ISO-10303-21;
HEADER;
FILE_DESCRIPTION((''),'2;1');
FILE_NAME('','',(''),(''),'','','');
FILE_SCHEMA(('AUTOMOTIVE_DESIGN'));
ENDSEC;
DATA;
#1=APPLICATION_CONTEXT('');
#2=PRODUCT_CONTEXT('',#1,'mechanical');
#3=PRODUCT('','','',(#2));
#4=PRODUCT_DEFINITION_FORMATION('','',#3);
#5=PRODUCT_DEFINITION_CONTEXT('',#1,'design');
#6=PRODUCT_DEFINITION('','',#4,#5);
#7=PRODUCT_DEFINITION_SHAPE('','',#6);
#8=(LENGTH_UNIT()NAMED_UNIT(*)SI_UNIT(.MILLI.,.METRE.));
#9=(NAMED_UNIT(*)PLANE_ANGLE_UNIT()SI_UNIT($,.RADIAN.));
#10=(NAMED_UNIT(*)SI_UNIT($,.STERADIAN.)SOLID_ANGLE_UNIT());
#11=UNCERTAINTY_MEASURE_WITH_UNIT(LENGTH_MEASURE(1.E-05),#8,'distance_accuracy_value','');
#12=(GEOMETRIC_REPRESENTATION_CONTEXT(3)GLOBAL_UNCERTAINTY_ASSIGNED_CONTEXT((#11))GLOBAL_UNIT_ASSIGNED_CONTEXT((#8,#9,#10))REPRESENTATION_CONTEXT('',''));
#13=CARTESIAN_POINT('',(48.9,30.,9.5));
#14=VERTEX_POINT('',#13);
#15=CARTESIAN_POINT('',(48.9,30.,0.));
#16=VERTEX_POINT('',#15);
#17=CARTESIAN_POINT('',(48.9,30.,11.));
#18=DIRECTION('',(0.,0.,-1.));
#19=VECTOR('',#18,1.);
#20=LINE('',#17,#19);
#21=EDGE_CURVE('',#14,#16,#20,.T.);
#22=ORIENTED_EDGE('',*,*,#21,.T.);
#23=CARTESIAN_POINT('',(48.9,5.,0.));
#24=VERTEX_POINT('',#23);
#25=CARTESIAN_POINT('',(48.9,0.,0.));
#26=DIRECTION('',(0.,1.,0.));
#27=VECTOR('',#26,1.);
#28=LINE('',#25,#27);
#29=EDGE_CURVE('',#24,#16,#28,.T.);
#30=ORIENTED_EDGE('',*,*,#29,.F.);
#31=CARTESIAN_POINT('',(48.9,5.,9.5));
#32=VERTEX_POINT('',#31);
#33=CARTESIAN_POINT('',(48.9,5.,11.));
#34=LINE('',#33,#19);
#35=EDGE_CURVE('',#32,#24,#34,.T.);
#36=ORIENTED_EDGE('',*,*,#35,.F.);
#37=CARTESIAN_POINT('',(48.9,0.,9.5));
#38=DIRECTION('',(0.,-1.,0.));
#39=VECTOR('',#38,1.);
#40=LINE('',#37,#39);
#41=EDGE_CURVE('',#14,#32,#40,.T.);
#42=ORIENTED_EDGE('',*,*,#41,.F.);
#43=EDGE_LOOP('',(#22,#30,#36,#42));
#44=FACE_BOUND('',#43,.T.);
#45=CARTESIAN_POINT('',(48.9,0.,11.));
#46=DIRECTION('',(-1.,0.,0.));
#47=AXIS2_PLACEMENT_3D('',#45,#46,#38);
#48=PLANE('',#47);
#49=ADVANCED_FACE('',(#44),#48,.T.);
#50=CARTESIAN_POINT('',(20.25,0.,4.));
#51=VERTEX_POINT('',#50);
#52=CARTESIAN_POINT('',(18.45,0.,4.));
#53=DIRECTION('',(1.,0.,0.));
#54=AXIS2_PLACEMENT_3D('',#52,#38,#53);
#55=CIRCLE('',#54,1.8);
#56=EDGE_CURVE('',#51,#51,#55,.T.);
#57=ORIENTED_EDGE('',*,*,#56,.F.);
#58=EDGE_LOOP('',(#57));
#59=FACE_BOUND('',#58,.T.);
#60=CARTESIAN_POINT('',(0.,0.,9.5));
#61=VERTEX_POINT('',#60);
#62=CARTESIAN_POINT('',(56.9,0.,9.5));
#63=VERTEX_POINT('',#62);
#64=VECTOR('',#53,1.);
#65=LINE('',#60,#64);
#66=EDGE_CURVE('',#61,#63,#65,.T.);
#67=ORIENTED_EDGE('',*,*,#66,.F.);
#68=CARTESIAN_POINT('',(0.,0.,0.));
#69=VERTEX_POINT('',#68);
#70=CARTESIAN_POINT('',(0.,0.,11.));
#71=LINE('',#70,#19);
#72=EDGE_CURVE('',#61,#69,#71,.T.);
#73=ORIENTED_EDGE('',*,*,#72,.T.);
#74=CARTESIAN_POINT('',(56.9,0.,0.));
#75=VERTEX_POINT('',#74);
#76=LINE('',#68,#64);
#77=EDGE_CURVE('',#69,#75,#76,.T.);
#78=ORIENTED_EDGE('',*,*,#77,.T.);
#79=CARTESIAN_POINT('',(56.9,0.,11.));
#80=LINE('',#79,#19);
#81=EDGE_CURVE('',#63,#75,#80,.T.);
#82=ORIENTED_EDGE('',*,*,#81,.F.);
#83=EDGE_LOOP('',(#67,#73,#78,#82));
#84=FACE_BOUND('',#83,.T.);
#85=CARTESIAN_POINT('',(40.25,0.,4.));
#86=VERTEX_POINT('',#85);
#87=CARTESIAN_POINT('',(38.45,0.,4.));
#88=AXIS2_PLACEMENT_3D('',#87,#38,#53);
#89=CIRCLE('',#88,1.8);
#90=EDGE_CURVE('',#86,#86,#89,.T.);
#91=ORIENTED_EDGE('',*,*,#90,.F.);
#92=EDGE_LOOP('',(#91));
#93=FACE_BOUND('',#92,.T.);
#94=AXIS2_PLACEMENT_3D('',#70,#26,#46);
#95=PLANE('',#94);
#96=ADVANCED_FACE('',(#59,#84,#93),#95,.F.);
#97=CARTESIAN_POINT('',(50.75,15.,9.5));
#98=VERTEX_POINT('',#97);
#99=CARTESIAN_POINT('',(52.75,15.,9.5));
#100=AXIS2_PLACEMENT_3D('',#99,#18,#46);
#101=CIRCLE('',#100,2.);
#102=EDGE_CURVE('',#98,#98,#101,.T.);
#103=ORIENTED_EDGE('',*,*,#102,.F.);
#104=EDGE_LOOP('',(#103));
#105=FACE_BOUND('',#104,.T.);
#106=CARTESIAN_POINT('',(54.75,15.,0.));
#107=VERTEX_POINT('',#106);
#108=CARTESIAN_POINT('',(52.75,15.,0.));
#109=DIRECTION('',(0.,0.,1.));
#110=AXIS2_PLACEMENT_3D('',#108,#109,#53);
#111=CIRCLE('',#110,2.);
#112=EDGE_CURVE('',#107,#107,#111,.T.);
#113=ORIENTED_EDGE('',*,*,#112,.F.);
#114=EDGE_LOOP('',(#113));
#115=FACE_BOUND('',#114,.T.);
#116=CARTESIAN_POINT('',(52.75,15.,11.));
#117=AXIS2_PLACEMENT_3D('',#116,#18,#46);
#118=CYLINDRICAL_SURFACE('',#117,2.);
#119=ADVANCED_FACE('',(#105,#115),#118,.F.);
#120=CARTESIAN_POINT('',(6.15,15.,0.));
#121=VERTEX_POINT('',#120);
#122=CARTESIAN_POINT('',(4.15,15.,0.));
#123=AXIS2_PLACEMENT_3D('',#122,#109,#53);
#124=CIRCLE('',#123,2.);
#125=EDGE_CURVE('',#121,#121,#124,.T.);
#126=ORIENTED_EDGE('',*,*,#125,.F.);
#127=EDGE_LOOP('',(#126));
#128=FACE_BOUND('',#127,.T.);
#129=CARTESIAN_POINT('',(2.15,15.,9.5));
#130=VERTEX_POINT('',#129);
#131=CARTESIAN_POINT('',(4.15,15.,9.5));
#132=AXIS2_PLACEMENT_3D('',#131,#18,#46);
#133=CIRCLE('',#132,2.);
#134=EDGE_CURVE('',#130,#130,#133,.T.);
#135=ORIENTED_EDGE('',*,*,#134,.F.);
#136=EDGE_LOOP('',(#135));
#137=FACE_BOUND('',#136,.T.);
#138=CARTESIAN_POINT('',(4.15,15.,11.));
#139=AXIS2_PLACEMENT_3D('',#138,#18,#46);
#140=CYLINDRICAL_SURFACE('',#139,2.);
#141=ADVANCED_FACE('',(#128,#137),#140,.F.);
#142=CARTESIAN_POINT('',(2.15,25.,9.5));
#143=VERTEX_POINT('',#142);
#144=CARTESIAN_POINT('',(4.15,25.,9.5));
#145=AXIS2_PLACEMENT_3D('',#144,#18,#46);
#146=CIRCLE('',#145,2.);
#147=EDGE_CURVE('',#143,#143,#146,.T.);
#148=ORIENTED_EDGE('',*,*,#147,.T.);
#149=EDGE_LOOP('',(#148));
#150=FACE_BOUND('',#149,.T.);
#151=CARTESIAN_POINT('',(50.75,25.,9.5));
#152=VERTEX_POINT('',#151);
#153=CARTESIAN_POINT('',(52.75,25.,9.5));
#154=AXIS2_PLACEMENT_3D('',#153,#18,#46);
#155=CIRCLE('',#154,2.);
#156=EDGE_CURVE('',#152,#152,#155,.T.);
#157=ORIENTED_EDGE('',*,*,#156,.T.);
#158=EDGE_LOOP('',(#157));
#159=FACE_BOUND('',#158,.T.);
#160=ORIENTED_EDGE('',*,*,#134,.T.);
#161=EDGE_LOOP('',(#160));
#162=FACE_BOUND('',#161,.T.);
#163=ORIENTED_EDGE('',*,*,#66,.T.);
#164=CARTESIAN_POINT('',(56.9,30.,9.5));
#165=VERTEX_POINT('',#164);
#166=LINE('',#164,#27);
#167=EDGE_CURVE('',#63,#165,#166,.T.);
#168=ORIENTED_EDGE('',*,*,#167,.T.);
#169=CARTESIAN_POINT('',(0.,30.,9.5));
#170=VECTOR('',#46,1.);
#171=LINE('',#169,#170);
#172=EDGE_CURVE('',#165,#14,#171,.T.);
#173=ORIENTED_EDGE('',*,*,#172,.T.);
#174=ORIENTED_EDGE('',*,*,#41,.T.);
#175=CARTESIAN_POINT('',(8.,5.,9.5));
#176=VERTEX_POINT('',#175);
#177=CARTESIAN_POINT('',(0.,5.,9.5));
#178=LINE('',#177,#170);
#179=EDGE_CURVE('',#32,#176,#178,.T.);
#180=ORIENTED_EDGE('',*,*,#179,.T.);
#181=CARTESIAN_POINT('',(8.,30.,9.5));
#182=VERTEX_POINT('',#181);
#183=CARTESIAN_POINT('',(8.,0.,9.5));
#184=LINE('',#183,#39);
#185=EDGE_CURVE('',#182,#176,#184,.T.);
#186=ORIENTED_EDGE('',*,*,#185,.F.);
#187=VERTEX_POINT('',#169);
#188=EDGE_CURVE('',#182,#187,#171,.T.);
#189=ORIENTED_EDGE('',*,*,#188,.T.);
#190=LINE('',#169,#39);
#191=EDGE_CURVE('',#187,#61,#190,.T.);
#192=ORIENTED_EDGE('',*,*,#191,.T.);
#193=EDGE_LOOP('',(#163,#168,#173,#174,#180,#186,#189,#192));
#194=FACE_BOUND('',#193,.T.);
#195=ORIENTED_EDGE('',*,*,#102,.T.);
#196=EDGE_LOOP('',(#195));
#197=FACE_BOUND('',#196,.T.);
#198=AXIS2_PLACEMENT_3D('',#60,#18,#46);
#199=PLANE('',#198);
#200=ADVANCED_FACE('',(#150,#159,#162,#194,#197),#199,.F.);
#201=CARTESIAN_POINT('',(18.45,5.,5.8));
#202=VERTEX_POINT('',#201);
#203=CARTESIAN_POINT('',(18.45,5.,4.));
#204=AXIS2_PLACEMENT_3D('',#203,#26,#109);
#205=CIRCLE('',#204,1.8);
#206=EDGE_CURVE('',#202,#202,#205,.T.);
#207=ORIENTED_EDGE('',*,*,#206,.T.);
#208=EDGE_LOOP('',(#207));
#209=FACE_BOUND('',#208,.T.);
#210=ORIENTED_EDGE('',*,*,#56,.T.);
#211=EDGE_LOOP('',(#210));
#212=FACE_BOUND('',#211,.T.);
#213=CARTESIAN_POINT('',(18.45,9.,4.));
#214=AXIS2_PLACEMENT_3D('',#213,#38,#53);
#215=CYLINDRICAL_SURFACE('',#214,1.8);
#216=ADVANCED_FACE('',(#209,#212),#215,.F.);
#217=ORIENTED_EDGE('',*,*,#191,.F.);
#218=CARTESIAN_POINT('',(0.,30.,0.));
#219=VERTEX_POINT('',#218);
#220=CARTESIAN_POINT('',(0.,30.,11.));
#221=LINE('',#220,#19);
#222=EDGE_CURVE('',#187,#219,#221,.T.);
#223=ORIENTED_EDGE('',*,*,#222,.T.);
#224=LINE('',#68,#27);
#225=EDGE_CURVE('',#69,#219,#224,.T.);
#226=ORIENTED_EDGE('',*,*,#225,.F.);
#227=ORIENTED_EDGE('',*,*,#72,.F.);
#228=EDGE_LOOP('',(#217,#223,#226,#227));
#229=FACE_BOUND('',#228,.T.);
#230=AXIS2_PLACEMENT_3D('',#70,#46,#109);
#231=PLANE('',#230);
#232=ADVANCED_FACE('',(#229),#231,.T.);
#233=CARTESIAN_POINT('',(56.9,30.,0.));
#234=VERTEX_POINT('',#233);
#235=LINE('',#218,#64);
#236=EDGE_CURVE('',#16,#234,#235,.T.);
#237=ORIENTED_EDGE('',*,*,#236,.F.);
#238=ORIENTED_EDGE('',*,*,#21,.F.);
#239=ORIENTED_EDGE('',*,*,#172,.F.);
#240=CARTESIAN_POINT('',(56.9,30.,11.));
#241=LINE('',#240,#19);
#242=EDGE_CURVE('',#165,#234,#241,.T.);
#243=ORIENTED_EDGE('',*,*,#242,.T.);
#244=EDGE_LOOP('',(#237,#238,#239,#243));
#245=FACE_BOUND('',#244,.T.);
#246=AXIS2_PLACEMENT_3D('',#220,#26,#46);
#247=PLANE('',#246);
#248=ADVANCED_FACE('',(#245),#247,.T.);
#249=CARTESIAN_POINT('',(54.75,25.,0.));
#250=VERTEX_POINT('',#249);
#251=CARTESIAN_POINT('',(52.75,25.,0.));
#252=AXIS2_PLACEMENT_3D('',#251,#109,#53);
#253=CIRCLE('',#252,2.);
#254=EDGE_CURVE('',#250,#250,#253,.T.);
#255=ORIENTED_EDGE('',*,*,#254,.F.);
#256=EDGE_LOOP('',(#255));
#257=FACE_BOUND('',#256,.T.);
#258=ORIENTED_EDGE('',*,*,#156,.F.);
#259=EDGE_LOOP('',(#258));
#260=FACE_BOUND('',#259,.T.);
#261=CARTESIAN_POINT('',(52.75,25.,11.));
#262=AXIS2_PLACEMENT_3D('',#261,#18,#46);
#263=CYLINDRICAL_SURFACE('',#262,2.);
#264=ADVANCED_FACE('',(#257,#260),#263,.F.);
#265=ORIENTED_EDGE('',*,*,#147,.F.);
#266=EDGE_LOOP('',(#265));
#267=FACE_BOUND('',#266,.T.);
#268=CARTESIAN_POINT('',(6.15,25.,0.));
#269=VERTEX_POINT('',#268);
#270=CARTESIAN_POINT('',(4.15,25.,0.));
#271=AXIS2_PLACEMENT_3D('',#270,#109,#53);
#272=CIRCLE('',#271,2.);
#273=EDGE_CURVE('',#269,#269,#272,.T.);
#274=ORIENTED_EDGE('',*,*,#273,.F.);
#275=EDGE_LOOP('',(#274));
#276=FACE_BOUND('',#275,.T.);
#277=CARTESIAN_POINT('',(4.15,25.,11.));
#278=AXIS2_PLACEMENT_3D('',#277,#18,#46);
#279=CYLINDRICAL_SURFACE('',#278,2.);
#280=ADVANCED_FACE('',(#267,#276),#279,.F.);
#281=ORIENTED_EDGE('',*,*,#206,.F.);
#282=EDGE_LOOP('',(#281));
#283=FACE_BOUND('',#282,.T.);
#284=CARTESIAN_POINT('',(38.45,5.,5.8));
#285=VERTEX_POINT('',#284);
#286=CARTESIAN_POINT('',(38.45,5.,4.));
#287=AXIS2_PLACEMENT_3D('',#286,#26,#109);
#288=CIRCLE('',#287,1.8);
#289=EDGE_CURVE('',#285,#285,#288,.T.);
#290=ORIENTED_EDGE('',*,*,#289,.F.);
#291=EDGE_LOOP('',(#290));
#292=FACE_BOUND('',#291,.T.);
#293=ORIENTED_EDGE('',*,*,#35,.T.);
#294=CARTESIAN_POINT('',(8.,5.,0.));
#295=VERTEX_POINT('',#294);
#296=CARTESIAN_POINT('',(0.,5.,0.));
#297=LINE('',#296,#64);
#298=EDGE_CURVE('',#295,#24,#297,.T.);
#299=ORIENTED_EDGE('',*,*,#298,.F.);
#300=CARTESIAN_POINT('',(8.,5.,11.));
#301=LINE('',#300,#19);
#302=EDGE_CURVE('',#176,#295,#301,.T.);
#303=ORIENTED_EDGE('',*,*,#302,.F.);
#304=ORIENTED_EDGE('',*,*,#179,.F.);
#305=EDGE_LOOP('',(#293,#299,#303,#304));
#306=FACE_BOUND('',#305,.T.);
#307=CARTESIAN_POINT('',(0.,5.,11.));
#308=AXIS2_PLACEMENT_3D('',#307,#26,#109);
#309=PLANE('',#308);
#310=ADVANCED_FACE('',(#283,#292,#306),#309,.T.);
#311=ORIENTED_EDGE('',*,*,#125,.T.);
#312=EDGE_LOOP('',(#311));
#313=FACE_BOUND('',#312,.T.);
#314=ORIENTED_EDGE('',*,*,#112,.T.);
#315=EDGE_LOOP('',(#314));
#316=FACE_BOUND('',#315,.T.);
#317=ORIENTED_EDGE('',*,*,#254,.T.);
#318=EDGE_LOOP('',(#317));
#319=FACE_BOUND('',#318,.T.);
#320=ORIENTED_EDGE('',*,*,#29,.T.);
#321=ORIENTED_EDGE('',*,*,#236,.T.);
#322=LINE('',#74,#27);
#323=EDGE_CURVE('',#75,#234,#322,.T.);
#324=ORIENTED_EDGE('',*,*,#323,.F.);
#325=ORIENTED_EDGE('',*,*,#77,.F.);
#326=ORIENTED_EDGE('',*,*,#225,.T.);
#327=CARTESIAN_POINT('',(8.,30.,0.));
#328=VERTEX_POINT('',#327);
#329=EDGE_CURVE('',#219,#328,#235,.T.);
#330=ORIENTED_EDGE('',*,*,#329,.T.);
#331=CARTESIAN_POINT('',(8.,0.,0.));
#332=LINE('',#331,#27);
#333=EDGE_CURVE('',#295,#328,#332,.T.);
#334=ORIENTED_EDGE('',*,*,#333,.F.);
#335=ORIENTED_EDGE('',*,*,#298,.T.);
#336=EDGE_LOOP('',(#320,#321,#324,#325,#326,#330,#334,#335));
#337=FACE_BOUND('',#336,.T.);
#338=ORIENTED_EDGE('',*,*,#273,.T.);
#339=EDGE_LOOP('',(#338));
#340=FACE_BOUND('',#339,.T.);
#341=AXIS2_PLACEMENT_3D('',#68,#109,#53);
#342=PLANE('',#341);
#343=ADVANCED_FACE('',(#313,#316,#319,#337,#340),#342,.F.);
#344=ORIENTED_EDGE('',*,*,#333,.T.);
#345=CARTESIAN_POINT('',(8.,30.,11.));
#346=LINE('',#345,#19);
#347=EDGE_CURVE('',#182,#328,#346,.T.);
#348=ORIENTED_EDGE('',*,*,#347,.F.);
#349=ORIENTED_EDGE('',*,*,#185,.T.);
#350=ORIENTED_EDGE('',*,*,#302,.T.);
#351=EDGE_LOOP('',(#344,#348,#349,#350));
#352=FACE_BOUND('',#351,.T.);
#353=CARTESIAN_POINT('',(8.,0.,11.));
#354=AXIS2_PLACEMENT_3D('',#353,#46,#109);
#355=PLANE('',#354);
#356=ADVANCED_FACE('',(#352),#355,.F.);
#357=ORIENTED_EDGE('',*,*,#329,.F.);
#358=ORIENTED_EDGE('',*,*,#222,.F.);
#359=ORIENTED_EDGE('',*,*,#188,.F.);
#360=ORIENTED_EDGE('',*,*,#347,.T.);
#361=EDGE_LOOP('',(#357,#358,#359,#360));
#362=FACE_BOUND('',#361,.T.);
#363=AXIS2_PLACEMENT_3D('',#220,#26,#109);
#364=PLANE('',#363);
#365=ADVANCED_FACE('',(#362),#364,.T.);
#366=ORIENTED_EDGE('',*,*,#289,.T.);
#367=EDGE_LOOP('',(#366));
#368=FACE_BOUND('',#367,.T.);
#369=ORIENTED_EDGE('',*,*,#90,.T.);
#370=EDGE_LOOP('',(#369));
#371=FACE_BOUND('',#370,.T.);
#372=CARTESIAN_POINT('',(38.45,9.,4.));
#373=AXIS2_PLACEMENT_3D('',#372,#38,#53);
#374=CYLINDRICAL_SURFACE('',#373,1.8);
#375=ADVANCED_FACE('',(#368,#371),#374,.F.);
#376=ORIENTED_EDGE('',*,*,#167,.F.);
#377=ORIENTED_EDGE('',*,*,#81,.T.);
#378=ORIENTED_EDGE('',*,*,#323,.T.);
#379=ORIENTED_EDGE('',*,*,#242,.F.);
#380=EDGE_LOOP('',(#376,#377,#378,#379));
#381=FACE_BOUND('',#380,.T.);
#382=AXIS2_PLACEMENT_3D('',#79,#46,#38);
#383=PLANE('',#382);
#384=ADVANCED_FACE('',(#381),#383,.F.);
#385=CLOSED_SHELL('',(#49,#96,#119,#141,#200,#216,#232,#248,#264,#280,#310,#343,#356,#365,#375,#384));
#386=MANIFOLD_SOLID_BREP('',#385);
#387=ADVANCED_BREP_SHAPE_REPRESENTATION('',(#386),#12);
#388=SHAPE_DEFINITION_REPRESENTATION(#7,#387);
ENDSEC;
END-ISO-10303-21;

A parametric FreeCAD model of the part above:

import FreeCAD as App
import Part
import Sketcher
Q = App.Units.Quantity

doc = App.newDocument("Part")
body = doc.addObject("PartDesign::Body", "Body")

sketch1 = body.newObject("Sketcher::SketchObject", "Sketch")
sketch1.AttachmentSupport = (doc.getObject("XY_Plane"), [""])
sketch1.MapMode = "FlatFace"
sketch1.addGeometry([
    Part.LineSegment(App.Vector(56.9, 0, 0), App.Vector(56.9, 30, 0)),
    Part.LineSegment(App.Vector(56.9, 30, 0), App.Vector(48.9, 30, 0)),
    Part.LineSegment(App.Vector(48.9, 30, 0), App.Vector(48.9, 5, 0)),
    Part.LineSegment(App.Vector(48.9, 5, 0), App.Vector(8, 5, 0)),
    Part.LineSegment(App.Vector(8, 5, 0), App.Vector(8, 30, 0)),
    Part.LineSegment(App.Vector(8, 30, 0), App.Vector(0, 30, 0)),
    Part.LineSegment(App.Vector(0, 30, 0), App.Vector(0, 0, 0)),
    Part.LineSegment(App.Vector(0, 0, 0), App.Vector(56.9, 0, 0)),
    Part.Circle(App.Vector(4.2, 25, 0), App.Vector(0, 0, 1), 2),
    Part.Circle(App.Vector(4.2, 15, 0), App.Vector(0, 0, 1), 2),
    Part.Circle(App.Vector(52.8, 25, 0), App.Vector(0, 0, 1), 2),
    Part.Circle(App.Vector(52.8, 15, 0), App.Vector(0, 0, 1), 2),
], False)
sketch1.addConstraint([
    Sketcher.Constraint("Coincident", 0, 2, 1, 1),
    Sketcher.Constraint("Coincident", 1, 2, 2, 1),
    Sketcher.Constraint("Coincident", 2, 2, 3, 1),
    Sketcher.Constraint("Coincident", 3, 2, 4, 1),
    Sketcher.Constraint("Coincident", 4, 2, 5, 1),
    Sketcher.Constraint("Coincident", 5, 2, 6, 1),
    Sketcher.Constraint("Coincident", 6, 2, 7, 1),
    Sketcher.Constraint("Coincident", 7, 2, 0, 1),
    Sketcher.Constraint("Vertical", 0),
    Sketcher.Constraint("Horizontal", 1),
    Sketcher.Constraint("Vertical", 2),
    Sketcher.Constraint("Horizontal", 3),
    Sketcher.Constraint("Vertical", 4),
    Sketcher.Constraint("Horizontal", 5),
    Sketcher.Constraint("Vertical", 6),
    Sketcher.Constraint("Horizontal", 7),
    Sketcher.Constraint("Coincident", 6, 2, -1, 1),
    Sketcher.Constraint("Equal", 8, 9),
    Sketcher.Constraint("Equal", 9, 10),
    Sketcher.Constraint("Equal", 10, 11),
    Sketcher.Constraint("Horizontal", 8, 3, 10, 3),
    Sketcher.Constraint("Horizontal", 9, 3, 11, 3),
    Sketcher.Constraint("Horizontal", 1, 2, 4, 2),
    Sketcher.Constraint("Vertical", 8, 3, 9, 3),
    Sketcher.Constraint("Vertical", 10, 3, 11, 3),
    Sketcher.Constraint("Equal", 1, 5),
    Sketcher.Constraint("Diameter", 8, Q("4 mm")),
    Sketcher.Constraint("DistanceX", 1, 2, 1, 1, Q("8 mm")),
    Sketcher.Constraint("DistanceY", 0, 1, 0, 2, Q("30 mm")),
    Sketcher.Constraint("DistanceY", 2, 2, 2, 1, Q("25 mm")),
    Sketcher.Constraint("DistanceX", 3, 2, 3, 1, Q("40.9 mm")),
    Sketcher.Constraint("DistanceY", -1, 1, 8, 3, Q("25 mm")),
    Sketcher.Constraint("DistanceY", -1, 1, 9, 3, Q("15 mm")),
    Sketcher.Constraint("DistanceX", 8, 3, 10, 3, Q("48.6 mm")),
    Sketcher.Constraint("DistanceX", -1, 1, 8, 3, Q("4.15 mm")),
])
pad1 = body.newObject("PartDesign::Pad", "Pad")
pad1.Profile = sketch1
pad1.Length = 11

sketch2 = body.newObject("Sketcher::SketchObject", "Sketch001")
sketch2.AttachmentSupport = (doc.getObject("XZ_Plane"), [""])
sketch2.MapMode = "FlatFace"
sketch2.addGeometry([
    Part.Circle(App.Vector(18.4, 4, 0), App.Vector(0, 0, 1), 1.8),
    Part.Circle(App.Vector(38.5, 4, 0), App.Vector(0, 0, 1), 1.8),
], False)
sketch2.addConstraint([
    Sketcher.Constraint("Equal", 0, 1),
    Sketcher.Constraint("Horizontal", 0, 3, 1, 3),
    Sketcher.Constraint("Diameter", 0, Q("3.6 mm")),
    Sketcher.Constraint("DistanceY", -1, 1, 0, 3, Q("4 mm")),
    Sketcher.Constraint("DistanceX", 0, 3, 1, 3, Q("20 mm")),
    Sketcher.Constraint("DistanceX", -1, 1, 0, 3, Q("18.45 mm")),
])
pocket1 = body.newObject("PartDesign::Pocket", "Pocket")
pocket1.Profile = sketch2
pocket1.Length = 9

sketch3 = body.newObject("Sketcher::SketchObject", "Sketch002")
sketch3.AttachmentSupport = (doc.getObject("XY_Plane"), [""])
sketch3.MapMode = "FlatFace"
sketch3.AttachmentOffset = App.Placement(App.Vector(0, 0, 11), App.Rotation())
sketch3.addGeometry([
    Part.LineSegment(App.Vector(0, 30, 0), App.Vector(0, 0, 0)),
    Part.LineSegment(App.Vector(0, 0, 0), App.Vector(57, 0, 0)),
    Part.LineSegment(App.Vector(57, 0, 0), App.Vector(57, 30, 0)),
    Part.LineSegment(App.Vector(57, 30, 0), App.Vector(0, 30, 0)),
], False)
sketch3.addConstraint([
    Sketcher.Constraint("Coincident", 0, 2, 1, 1),
    Sketcher.Constraint("Coincident", 1, 2, 2, 1),
    Sketcher.Constraint("Coincident", 2, 2, 3, 1),
    Sketcher.Constraint("Coincident", 3, 2, 0, 1),
    Sketcher.Constraint("Vertical", 0),
    Sketcher.Constraint("Horizontal", 1),
    Sketcher.Constraint("Vertical", 2),
    Sketcher.Constraint("Horizontal", 3),
    Sketcher.Constraint("Coincident", 0, 2, -1, 1),
    Sketcher.Constraint("DistanceY", 0, 2, 0, 1, Q("30 mm")),
    Sketcher.Constraint("DistanceX", 1, 1, 1, 2, Q("56.9 mm")),
])
pocket2 = body.newObject("PartDesign::Pocket", "Pocket001")
pocket2.Profile = sketch3
pocket2.Length = 1.5

doc.recompute()
